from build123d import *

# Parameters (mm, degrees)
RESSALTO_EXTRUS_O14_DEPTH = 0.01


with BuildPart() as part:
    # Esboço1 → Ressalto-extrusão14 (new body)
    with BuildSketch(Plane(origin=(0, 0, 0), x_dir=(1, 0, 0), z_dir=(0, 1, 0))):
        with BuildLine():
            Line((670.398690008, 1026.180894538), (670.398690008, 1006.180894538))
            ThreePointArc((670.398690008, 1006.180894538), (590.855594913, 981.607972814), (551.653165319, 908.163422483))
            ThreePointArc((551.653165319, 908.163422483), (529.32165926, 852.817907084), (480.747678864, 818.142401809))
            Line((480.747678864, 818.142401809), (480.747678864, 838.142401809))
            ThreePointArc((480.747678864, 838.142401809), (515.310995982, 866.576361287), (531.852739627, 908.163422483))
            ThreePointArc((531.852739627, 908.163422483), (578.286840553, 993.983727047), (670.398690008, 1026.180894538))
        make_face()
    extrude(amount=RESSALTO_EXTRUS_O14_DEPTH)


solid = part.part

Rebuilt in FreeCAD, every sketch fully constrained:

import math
import FreeCAD as App
import Part
import Sketcher
from FreeCAD import Vector

doc = App.newDocument("Part")
body = doc.addObject("PartDesign::Body", "Body")

sketch1 = body.newObject("Sketcher::SketchObject", "Sketch")
sketch1.AttachmentSupport = (doc.getObject("XZ_Plane"), [""])
sketch1.MapMode = "FlatFace"
sketch1.addGeometry(Part.LineSegment(Vector(670.39869, -1006.180895, 0), Vector(670.39869, -1026.180895, 0)), False)
sketch1.addGeometry(Part.ArcOfCircle(Part.Circle(Vector(665.936631, -891.087746, 0), Vector(0, 0, 1), 135.166818), math.radians(-172.74241), math.radians(-88.108237)), False)
sketch1.addGeometry(Part.ArcOfCircle(Part.Circle(Vector(442.790685, -919.505537, 0), Vector(0, 0, 1), 89.781363), math.radians(7.25759), math.radians(64.990317)), False)
sketch1.addGeometry(Part.LineSegment(Vector(480.747679, -838.142402, 0), Vector(480.747679, -818.142402, 0)), False)
sketch1.addGeometry(Part.ArcOfCircle(Part.Circle(Vector(445.560011, -918.793169, 0), Vector(0, 0, 1), 106.624335), math.radians(5.721518), math.radians(70.730293)), False)
sketch1.addGeometry(Part.ArcOfCircle(Part.Circle(Vector(660.480092, -897.259772, 0), Vector(0, 0, 1), 109.371795), math.radians(-174.278482), math.radians(-84.79687)), False)
sketch1.addConstraint(Sketcher.Constraint("Coincident", 0, 2, 1, 2))
sketch1.addConstraint(Sketcher.Constraint("Tangent", 1, 1, 2, 1))
sketch1.addConstraint(Sketcher.Constraint("Coincident", 2, 2, 3, 1))
sketch1.addConstraint(Sketcher.Constraint("Coincident", 3, 2, 4, 2))
sketch1.addConstraint(Sketcher.Constraint("Tangent", 4, 1, 5, 1))
sketch1.addConstraint(Sketcher.Constraint("Coincident", 5, 2, 0, 1))
sketch1.addConstraint(Sketcher.Constraint("Vertical", 0))
sketch1.addConstraint(Sketcher.Constraint("Vertical", 3))
sketch1.addConstraint(Sketcher.Constraint("Horizontal", 1, 1, 4, 1))
sketch1.addConstraint(Sketcher.Constraint("Equal", 0, 3))
sketch1.addConstraint(Sketcher.Constraint("DistanceY", 0, 2, 0, 1, 20.0))
sketch1.addConstraint(Sketcher.Constraint("Radius", 1, 135.166818))
sketch1.addConstraint(Sketcher.Constraint("Radius", 2, 89.781363))
sketch1.addConstraint(Sketcher.Constraint("Radius", 4, 106.624335))
sketch1.addConstraint(Sketcher.Constraint("Radius", 5, 109.371795))
sketch1.addConstraint(Sketcher.Constraint("DistanceY", 2, 2, -1, 1, 838.142402))
sketch1.addConstraint(Sketcher.Constraint("DistanceX", 5, 3, 0, 2, 9.918598))
sketch1.addConstraint(Sketcher.Constraint("DistanceX", -1, 1, 1, 3, 665.936631))
sketch1.addConstraint(Sketcher.Constraint("DistanceX", -1, 1, 4, 3, 445.560011))
sketch1.addConstraint(Sketcher.Constraint("DistanceY", 4, 3, -1, 1, 918.793169))
pad1 = body.newObject("PartDesign::Pad", "Pad")
pad1.Profile = sketch1
pad1.Length = 0.01
pad1.Reversed = True

doc.recompute()
